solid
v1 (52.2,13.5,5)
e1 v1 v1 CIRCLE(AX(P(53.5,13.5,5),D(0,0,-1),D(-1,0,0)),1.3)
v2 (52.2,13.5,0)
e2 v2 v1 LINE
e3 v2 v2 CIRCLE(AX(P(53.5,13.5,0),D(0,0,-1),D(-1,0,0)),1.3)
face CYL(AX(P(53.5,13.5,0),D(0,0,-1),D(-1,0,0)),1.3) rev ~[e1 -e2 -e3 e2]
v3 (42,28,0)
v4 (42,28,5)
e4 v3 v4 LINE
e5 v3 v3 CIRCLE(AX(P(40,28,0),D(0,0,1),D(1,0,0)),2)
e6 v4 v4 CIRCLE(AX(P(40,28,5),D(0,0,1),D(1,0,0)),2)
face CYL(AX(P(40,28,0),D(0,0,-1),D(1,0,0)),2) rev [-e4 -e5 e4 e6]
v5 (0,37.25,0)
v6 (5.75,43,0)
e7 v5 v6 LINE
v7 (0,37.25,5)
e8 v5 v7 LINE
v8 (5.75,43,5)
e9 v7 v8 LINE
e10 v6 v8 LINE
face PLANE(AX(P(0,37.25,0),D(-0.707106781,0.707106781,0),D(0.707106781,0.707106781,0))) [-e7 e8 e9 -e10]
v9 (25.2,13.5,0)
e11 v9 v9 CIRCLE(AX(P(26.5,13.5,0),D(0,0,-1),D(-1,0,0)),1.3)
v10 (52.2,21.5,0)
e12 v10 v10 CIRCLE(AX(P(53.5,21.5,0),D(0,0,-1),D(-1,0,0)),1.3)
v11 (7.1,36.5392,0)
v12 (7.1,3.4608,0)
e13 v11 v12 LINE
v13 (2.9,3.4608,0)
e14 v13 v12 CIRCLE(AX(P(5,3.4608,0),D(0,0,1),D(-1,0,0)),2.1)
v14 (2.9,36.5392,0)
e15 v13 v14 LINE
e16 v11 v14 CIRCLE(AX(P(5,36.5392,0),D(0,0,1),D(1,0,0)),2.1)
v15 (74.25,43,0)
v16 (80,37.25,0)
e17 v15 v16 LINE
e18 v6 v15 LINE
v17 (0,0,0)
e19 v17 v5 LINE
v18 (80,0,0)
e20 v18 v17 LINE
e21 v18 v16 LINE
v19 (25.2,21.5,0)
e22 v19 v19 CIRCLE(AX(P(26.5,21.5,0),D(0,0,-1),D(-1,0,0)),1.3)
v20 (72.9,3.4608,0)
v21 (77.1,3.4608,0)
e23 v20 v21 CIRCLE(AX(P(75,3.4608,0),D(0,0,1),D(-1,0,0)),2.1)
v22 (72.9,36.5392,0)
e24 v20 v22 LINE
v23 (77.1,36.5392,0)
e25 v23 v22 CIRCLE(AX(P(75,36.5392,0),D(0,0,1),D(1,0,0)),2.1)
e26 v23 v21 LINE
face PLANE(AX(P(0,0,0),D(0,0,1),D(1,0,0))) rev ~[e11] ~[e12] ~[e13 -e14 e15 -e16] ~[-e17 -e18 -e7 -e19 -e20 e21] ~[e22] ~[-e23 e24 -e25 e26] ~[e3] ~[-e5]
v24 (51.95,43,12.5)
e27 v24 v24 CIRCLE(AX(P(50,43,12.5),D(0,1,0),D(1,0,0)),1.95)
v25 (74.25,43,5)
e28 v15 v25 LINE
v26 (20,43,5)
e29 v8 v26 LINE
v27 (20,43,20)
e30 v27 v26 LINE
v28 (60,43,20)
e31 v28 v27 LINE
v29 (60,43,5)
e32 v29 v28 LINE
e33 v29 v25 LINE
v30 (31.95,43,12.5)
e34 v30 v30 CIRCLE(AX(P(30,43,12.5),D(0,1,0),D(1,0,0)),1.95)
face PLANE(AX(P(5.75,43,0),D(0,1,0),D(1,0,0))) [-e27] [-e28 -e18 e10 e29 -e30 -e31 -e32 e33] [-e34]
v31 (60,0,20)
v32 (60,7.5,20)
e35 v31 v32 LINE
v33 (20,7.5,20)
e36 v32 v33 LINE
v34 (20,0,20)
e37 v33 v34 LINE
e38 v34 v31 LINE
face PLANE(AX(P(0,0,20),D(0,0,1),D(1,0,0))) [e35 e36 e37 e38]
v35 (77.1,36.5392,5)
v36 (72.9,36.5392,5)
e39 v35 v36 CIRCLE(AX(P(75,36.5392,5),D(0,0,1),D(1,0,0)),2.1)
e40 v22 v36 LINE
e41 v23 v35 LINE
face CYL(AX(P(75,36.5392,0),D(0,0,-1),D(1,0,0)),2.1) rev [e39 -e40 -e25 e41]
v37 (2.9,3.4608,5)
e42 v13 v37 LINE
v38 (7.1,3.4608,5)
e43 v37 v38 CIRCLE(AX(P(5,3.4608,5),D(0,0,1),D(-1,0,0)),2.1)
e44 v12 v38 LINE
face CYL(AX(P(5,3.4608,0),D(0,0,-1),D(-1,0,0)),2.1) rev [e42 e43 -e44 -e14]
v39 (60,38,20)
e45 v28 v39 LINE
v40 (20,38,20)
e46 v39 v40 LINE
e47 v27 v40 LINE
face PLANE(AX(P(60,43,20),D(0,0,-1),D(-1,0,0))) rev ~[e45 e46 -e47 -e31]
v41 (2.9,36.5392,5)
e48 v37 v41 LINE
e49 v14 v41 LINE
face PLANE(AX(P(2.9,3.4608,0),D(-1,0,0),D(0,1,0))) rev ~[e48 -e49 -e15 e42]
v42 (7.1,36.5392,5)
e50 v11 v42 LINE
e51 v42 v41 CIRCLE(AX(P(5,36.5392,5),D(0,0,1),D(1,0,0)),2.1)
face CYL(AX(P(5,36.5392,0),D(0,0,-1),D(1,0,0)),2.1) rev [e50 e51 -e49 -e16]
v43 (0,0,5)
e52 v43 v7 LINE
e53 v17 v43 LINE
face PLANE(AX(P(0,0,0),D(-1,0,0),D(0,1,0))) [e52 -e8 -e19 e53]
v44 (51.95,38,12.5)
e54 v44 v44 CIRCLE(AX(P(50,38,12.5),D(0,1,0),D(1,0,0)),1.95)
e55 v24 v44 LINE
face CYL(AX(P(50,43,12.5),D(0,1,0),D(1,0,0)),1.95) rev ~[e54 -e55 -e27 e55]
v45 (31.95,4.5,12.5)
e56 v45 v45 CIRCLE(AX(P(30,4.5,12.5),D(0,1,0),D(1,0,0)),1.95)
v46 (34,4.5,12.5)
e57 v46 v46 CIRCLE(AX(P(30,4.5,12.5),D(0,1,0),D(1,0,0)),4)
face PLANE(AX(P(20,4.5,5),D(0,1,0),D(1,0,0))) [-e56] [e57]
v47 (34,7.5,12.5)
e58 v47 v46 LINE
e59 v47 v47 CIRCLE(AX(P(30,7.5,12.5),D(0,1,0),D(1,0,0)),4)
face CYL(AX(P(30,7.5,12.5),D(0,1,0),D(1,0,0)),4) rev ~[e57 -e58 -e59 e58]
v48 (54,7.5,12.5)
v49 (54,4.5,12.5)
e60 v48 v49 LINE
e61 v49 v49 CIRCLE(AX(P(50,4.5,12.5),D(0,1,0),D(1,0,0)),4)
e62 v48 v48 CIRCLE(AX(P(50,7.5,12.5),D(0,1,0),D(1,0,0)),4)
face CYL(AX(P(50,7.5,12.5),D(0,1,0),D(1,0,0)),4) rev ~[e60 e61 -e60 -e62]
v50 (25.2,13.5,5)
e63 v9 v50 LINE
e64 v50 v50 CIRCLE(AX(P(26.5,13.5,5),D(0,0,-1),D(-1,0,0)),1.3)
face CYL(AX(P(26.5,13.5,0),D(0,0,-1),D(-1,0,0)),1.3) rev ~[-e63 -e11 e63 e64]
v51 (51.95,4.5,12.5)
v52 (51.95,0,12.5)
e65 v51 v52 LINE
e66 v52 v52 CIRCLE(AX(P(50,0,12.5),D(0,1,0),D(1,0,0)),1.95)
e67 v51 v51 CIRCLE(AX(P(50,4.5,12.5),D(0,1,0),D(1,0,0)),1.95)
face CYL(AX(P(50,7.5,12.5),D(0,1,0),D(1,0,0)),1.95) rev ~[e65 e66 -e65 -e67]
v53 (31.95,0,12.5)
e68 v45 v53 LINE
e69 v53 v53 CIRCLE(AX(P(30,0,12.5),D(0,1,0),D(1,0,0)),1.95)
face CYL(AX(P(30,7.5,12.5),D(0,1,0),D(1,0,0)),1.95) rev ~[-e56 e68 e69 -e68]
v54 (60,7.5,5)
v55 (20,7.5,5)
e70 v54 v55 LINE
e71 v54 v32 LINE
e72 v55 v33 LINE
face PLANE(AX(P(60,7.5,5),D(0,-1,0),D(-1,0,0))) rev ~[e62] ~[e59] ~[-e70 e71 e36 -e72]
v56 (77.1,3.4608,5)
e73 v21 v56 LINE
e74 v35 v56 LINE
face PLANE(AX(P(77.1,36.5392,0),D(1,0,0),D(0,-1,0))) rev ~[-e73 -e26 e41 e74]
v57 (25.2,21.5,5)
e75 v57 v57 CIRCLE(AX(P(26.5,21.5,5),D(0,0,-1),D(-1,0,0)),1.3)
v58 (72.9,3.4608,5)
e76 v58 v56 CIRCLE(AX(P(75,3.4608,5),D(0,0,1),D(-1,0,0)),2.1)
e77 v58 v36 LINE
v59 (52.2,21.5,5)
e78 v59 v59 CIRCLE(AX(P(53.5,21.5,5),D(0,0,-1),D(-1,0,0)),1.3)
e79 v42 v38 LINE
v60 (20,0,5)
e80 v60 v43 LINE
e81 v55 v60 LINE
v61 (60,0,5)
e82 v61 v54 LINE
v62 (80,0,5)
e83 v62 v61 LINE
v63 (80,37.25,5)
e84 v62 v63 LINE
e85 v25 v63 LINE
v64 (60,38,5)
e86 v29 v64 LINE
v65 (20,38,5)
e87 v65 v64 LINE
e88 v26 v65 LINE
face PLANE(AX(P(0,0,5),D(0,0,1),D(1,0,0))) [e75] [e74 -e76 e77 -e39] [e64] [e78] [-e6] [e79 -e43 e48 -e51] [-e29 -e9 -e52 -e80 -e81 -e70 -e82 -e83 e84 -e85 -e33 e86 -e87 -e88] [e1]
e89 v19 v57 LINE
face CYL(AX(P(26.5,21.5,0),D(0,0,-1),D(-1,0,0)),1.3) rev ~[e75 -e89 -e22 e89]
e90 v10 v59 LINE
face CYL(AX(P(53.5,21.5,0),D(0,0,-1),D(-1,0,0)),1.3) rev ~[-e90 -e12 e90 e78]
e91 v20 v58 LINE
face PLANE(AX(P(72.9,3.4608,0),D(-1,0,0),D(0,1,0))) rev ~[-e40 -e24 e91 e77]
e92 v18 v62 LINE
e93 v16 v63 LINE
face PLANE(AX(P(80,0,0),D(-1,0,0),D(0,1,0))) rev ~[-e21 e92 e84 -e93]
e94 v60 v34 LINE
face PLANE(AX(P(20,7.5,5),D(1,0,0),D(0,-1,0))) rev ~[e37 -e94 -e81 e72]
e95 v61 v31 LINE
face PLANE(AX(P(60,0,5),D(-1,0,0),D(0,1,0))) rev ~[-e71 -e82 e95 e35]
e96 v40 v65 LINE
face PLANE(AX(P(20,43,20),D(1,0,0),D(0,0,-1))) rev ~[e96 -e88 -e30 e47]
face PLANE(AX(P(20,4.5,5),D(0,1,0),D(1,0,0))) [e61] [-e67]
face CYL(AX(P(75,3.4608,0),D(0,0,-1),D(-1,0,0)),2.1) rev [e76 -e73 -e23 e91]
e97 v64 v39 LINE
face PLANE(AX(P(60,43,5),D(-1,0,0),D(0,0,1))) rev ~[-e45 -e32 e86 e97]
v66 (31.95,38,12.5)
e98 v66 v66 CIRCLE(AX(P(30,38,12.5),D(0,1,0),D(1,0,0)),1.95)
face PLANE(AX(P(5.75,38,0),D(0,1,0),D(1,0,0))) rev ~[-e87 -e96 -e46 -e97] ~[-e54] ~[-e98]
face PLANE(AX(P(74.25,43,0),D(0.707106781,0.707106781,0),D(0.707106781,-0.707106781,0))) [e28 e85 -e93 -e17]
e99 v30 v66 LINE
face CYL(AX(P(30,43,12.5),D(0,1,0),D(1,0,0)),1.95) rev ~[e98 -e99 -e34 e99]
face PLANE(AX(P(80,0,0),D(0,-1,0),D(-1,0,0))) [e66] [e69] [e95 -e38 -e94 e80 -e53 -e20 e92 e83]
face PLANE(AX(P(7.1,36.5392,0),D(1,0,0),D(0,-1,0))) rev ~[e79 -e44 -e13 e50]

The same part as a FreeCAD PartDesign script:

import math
import FreeCAD as App
import Part
import Sketcher


def add_polygon(sketch, points):
    """Adds a closed chain of lines whose ends are joined by coincident constraints."""
    first, n = sketch.GeometryCount, len(points)
    for a, b in zip(points, points[1:] + points[:1]):
        sketch.addGeometry(Part.LineSegment(App.Vector(*a, 0), App.Vector(*b, 0)), False)
    for i in range(n):
        sketch.addConstraint(Sketcher.Constraint("Coincident", first + i, 2, first + (i + 1) % n, 1))

doc = App.newDocument("Part")
body = doc.addObject("PartDesign::Body", "Body")

# Sketch on XY plane
sketch1 = doc.addObject("Sketcher::SketchObject", "Sketch")
body.addObject(sketch1)
sketch1.AttachmentSupport = (doc.XY_Plane, [""])
sketch1.MapMode = "FlatFace"
add_polygon(sketch1, [(5.75, 43), (0, 37.25), (0, 0), (80, 0), (80, 37.25), (74.25, 43)])  # lines 0-5
sketch1.addGeometry(Part.ArcOfCircle(Part.Circle(App.Vector(5, 3.4608, 0), App.Vector(0, 0, 1), 2.1), math.radians(180), math.radians(360)), False)  # 6
sketch1.addGeometry(Part.LineSegment(App.Vector(2.9, 3.4608, 0), App.Vector(2.9, 36.5392, 0)), False)  # 7
sketch1.addGeometry(Part.ArcOfCircle(Part.Circle(App.Vector(5, 36.5392, 0), App.Vector(0, 0, 1), 2.1), math.radians(0), math.radians(180)), False)  # 8
sketch1.addGeometry(Part.LineSegment(App.Vector(7.1, 36.5392, 0), App.Vector(7.1, 3.4608, 0)), False)  # 9
sketch1.addGeometry(Part.ArcOfCircle(Part.Circle(App.Vector(75, 36.5392, 0), App.Vector(0, 0, 1), 2.1), math.radians(0), math.radians(180)), False)  # 10
sketch1.addGeometry(Part.LineSegment(App.Vector(77.1, 36.5392, 0), App.Vector(77.1, 3.4608, 0)), False)  # 11
sketch1.addGeometry(Part.ArcOfCircle(Part.Circle(App.Vector(75, 3.4608, 0), App.Vector(0, 0, 1), 2.1), math.radians(180), math.radians(360)), False)  # 12
sketch1.addGeometry(Part.LineSegment(App.Vector(72.9, 3.4608, 0), App.Vector(72.9, 36.5392, 0)), False)  # 13
sketch1.addGeometry(Part.Circle(App.Vector(40, 28, 0), App.Vector(0, 0, 1), 2), False)  # 14
sketch1.addConstraint([
    Sketcher.Constraint("Tangent", 6, 1, 7, 1),
    Sketcher.Constraint("Tangent", 7, 2, 8, 2),
    Sketcher.Constraint("Tangent", 8, 1, 9, 1),
    Sketcher.Constraint("Tangent", 9, 2, 6, 2),
    Sketcher.Constraint("Tangent", 10, 1, 11, 1),
    Sketcher.Constraint("Tangent", 11, 2, 12, 2),
    Sketcher.Constraint("Tangent", 12, 1, 13, 1),
    Sketcher.Constraint("Tangent", 13, 2, 10, 2),
    Sketcher.Constraint("Vertical", 1),
    Sketcher.Constraint("Horizontal", 2),
    Sketcher.Constraint("Vertical", 3),
    Sketcher.Constraint("Horizontal", 5),
    Sketcher.Constraint("Vertical", 7),
    Sketcher.Constraint("Vertical", 9),
    Sketcher.Constraint("Vertical", 11),
    Sketcher.Constraint("Vertical", 13),
    Sketcher.Constraint("Coincident", 1, 2, -1, 1),
    Sketcher.Constraint("Equal", 8, 10),
    Sketcher.Constraint("Perpendicular", 0, 4),
    Sketcher.Constraint("Horizontal", 8, 3, 10, 3),
    Sketcher.Constraint("Horizontal", 6, 3, 12, 3),
    Sketcher.Constraint("Horizontal", 0, 2, 3, 2),
    Sketcher.Constraint("Equal", 0, 4),
    Sketcher.Constraint("Diameter", 14, 4.0),
    Sketcher.Constraint("Radius", 6, 2.1),
    Sketcher.Constraint("DistanceX", 2, 1, 2, 2, 80.0),
    Sketcher.Constraint("DistanceX", 5, 2, 5, 1, 68.5),
    Sketcher.Constraint("DistanceX", -1, 1, 6, 3, 5.0),
    Sketcher.Constraint("DistanceX", -1, 1, 10, 3, 75.0),
    Sketcher.Constraint("DistanceX", -1, 1, 14, 3, 40.0),
    Sketcher.Constraint("DistanceY", -1, 1, 14, 3, 28.0),
    Sketcher.Constraint("DistanceY", -1, 1, 4, 2, 43.0),
    Sketcher.Constraint("DistanceY", 7, 1, 7, 2, 33.0784),
    Sketcher.Constraint("DistanceY", -1, 1, 6, 3, 3.4608),
])
pad1 = doc.addObject("PartDesign::Pad", "Pad")
body.addObject(pad1)
pad1.Profile = sketch1
pad1.Length = 5

# Sketch on XY plane
sketch2 = doc.addObject("Sketcher::SketchObject", "Sketch001")
body.addObject(sketch2)
sketch2.AttachmentSupport = (doc.XY_Plane, [""])
sketch2.MapMode = "FlatFace"
sketch2.AttachmentOffset = App.Placement(App.Vector(0, 0, 5), App.Rotation())
add_polygon(sketch2, [(20, 0), (60, 0), (60, 7.5), (20, 7.5)])  # lines 0-3
sketch2.addConstraint([
    Sketcher.Constraint("Horizontal", 0),
    Sketcher.Constraint("Vertical", 1),
    Sketcher.Constraint("Horizontal", 2),
    Sketcher.Constraint("Vertical", 3),
    Sketcher.Constraint("PointOnObject", 0, 2, -1),
    Sketcher.Constraint("DistanceX", 0, 1, 0, 2, 40.0),
    Sketcher.Constraint("DistanceY", 1, 1, 1, 2, 7.5),
    Sketcher.Constraint("DistanceX", -1, 1, 0, 2, 60.0),
])
pad2 = doc.addObject("PartDesign::Pad", "Pad001")
body.addObject(pad2)
pad2.Profile = sketch2
pad2.Length = 15

# Sketch on XZ plane
sketch3 = doc.addObject("Sketcher::SketchObject", "Sketch002")
body.addObject(sketch3)
sketch3.AttachmentSupport = (doc.XZ_Plane, [""])
sketch3.MapMode = "FlatFace"
sketch3.AttachmentOffset = App.Placement(App.Vector(0, 0, -7.5), App.Rotation())
sketch3.addGeometry([
    Part.Circle(App.Vector(50, 12.5, 0), App.Vector(0, 0, 1), 1.95),
    Part.Circle(App.Vector(30, 12.5, 0), App.Vector(0, 0, 1), 1.95),
], False)
sketch3.addConstraint([
    Sketcher.Constraint("Equal", 0, 1),
    Sketcher.Constraint("Horizontal", 0, 3, 1, 3),
    Sketcher.Constraint("Diameter", 0, 3.9),
    Sketcher.Constraint("DistanceX", -1, 1, 0, 3, 50.0),
    Sketcher.Constraint("DistanceX", -1, 1, 1, 3, 30.0),
    Sketcher.Constraint("DistanceY", -1, 1, 0, 3, 12.5),
])
pocket1 = doc.addObject("PartDesign::Pocket", "Pocket")
body.addObject(pocket1)
pocket1.Profile = sketch3
pocket1.Length = 15
pocket1.Reversed = True

# Sketch on XZ plane
sketch4 = doc.addObject("Sketcher::SketchObject", "Sketch003")
body.addObject(sketch4)
sketch4.AttachmentSupport = (doc.XZ_Plane, [""])
sketch4.MapMode = "FlatFace"
sketch4.AttachmentOffset = App.Placement(App.Vector(0, 0, -7.5), App.Rotation())
sketch4.addGeometry([
    Part.Circle(App.Vector(30, 12.5, 0), App.Vector(0, 0, 1), 4),
    Part.Circle(App.Vector(30, 12.5, 0), App.Vector(0, 0, 1), 1.95),
    Part.Circle(App.Vector(50, 12.5, 0), App.Vector(0, 0, 1), 4),
    Part.Circle(App.Vector(50, 12.5, 0), App.Vector(0, 0, 1), 1.95),
], False)
sketch4.addConstraint([
    Sketcher.Constraint("Coincident", 1, 3, 0, 3),
    Sketcher.Constraint("Coincident", 3, 3, 2, 3),
    Sketcher.Constraint("Equal", 0, 2),
    Sketcher.Constraint("Equal", 1, 3),
    Sketcher.Constraint("Horizontal", 1, 3, 2, 3),
    Sketcher.Constraint("Diameter", 0, 8.0),
    Sketcher.Constraint("Diameter", 1, 3.9),
    Sketcher.Constraint("DistanceX", -1, 1, 0, 3, 30.0),
    Sketcher.Constraint("DistanceX", -1, 1, 2, 3, 50.0),
    Sketcher.Constraint("DistanceY", -1, 1, 0, 3, 12.5),
])
pocket2 = doc.addObject("PartDesign::Pocket", "Pocket001")
body.addObject(pocket2)
pocket2.Profile = sketch4
pocket2.Length = 3
pocket2.Reversed = True

# Sketch on XY plane
sketch5 = doc.addObject("Sketcher::SketchObject", "Sketch004")
body.addObject(sketch5)
sketch5.AttachmentSupport = (doc.XY_Plane, [""])
sketch5.MapMode = "FlatFace"
sketch5.addGeometry([
    Part.Circle(App.Vector(26.5, 13.5, 0), App.Vector(0, 0, 1), 1.3),
    Part.Circle(App.Vector(53.5, 21.5, 0), App.Vector(0, 0, 1), 1.3),
    Part.Circle(App.Vector(53.5, 13.5, 0), App.Vector(0, 0, 1), 1.3),
    Part.Circle(App.Vector(26.5, 21.5, 0), App.Vector(0, 0, 1), 1.3),
], False)
sketch5.addConstraint([
    Sketcher.Constraint("Equal", 0, 1),
    Sketcher.Constraint("Equal", 1, 2),
    Sketcher.Constraint("Equal", 2, 3),
    Sketcher.Constraint("Horizontal", 0, 3, 2, 3),
    Sketcher.Constraint("Horizontal", 1, 3, 3, 3),
    Sketcher.Constraint("Vertical", 1, 3, 2, 3),
    Sketcher.Constraint("Vertical", 0, 3, 3, 3),
    Sketcher.Constraint("Diameter", 0, 2.6),
    Sketcher.Constraint("DistanceX", 0, 3, 1, 3, 27.0),
    Sketcher.Constraint("DistanceY", 0, 3, 1, 3, 8.0),
    Sketcher.Constraint("DistanceX", -1, 1, 0, 3, 26.5),
    Sketcher.Constraint("DistanceY", -1, 1, 0, 3, 13.5),
])
pocket3 = doc.addObject("PartDesign::Pocket", "Pocket002")
body.addObject(pocket3)
pocket3.Profile = sketch5
pocket3.Type = "ThroughAll"
pocket3.Reversed = True

# Sketch on XZ plane
sketch6 = doc.addObject("Sketcher::SketchObject", "Sketch005")
body.addObject(sketch6)
sketch6.AttachmentSupport = (doc.XZ_Plane, [""])
sketch6.MapMode = "FlatFace"
sketch6.AttachmentOffset = App.Placement(App.Vector(0, 0, -43), App.Rotation())
add_polygon(sketch6, [(20, 20), (60, 20), (60, 5), (20, 5)])  # lines 0-3
sketch6.addGeometry(Part.Circle(App.Vector(30, 12.5, 0), App.Vector(0, 0, 1), 1.95), False)  # 4
sketch6.addGeometry(Part.Circle(App.Vector(50, 12.5, 0), App.Vector(0, 0, 1), 1.95), False)  # 5
sketch6.addConstraint([
    Sketcher.Constraint("Horizontal", 0),
    Sketcher.Constraint("Vertical", 1),
    Sketcher.Constraint("Horizontal", 2),
    Sketcher.Constraint("Vertical", 3),
    Sketcher.Constraint("Equal", 4, 5),
    Sketcher.Constraint("Horizontal", 4, 3, 5, 3),
    Sketcher.Constraint("Diameter", 4, 3.9),
    Sketcher.Constraint("DistanceX", 0, 1, 0, 2, 40.0),
    Sketcher.Constraint("DistanceY", 1, 2, 1, 1, 15.0),
    Sketcher.Constraint("DistanceX", -1, 1, 4, 3, 30.0),
    Sketcher.Constraint("DistanceX", -1, 1, 5, 3, 50.0),
    Sketcher.Constraint("DistanceX", -1, 1, 0, 2, 60.0),
    Sketcher.Constraint("DistanceY", -1, 1, 0, 2, 20.0),
    Sketcher.Constraint("DistanceY", -1, 1, 4, 3, 12.5),
])
pad3 = doc.addObject("PartDesign::Pad", "Pad002")
body.addObject(pad3)
pad3.Profile = sketch6
pad3.Length = 5

doc.recompute()
